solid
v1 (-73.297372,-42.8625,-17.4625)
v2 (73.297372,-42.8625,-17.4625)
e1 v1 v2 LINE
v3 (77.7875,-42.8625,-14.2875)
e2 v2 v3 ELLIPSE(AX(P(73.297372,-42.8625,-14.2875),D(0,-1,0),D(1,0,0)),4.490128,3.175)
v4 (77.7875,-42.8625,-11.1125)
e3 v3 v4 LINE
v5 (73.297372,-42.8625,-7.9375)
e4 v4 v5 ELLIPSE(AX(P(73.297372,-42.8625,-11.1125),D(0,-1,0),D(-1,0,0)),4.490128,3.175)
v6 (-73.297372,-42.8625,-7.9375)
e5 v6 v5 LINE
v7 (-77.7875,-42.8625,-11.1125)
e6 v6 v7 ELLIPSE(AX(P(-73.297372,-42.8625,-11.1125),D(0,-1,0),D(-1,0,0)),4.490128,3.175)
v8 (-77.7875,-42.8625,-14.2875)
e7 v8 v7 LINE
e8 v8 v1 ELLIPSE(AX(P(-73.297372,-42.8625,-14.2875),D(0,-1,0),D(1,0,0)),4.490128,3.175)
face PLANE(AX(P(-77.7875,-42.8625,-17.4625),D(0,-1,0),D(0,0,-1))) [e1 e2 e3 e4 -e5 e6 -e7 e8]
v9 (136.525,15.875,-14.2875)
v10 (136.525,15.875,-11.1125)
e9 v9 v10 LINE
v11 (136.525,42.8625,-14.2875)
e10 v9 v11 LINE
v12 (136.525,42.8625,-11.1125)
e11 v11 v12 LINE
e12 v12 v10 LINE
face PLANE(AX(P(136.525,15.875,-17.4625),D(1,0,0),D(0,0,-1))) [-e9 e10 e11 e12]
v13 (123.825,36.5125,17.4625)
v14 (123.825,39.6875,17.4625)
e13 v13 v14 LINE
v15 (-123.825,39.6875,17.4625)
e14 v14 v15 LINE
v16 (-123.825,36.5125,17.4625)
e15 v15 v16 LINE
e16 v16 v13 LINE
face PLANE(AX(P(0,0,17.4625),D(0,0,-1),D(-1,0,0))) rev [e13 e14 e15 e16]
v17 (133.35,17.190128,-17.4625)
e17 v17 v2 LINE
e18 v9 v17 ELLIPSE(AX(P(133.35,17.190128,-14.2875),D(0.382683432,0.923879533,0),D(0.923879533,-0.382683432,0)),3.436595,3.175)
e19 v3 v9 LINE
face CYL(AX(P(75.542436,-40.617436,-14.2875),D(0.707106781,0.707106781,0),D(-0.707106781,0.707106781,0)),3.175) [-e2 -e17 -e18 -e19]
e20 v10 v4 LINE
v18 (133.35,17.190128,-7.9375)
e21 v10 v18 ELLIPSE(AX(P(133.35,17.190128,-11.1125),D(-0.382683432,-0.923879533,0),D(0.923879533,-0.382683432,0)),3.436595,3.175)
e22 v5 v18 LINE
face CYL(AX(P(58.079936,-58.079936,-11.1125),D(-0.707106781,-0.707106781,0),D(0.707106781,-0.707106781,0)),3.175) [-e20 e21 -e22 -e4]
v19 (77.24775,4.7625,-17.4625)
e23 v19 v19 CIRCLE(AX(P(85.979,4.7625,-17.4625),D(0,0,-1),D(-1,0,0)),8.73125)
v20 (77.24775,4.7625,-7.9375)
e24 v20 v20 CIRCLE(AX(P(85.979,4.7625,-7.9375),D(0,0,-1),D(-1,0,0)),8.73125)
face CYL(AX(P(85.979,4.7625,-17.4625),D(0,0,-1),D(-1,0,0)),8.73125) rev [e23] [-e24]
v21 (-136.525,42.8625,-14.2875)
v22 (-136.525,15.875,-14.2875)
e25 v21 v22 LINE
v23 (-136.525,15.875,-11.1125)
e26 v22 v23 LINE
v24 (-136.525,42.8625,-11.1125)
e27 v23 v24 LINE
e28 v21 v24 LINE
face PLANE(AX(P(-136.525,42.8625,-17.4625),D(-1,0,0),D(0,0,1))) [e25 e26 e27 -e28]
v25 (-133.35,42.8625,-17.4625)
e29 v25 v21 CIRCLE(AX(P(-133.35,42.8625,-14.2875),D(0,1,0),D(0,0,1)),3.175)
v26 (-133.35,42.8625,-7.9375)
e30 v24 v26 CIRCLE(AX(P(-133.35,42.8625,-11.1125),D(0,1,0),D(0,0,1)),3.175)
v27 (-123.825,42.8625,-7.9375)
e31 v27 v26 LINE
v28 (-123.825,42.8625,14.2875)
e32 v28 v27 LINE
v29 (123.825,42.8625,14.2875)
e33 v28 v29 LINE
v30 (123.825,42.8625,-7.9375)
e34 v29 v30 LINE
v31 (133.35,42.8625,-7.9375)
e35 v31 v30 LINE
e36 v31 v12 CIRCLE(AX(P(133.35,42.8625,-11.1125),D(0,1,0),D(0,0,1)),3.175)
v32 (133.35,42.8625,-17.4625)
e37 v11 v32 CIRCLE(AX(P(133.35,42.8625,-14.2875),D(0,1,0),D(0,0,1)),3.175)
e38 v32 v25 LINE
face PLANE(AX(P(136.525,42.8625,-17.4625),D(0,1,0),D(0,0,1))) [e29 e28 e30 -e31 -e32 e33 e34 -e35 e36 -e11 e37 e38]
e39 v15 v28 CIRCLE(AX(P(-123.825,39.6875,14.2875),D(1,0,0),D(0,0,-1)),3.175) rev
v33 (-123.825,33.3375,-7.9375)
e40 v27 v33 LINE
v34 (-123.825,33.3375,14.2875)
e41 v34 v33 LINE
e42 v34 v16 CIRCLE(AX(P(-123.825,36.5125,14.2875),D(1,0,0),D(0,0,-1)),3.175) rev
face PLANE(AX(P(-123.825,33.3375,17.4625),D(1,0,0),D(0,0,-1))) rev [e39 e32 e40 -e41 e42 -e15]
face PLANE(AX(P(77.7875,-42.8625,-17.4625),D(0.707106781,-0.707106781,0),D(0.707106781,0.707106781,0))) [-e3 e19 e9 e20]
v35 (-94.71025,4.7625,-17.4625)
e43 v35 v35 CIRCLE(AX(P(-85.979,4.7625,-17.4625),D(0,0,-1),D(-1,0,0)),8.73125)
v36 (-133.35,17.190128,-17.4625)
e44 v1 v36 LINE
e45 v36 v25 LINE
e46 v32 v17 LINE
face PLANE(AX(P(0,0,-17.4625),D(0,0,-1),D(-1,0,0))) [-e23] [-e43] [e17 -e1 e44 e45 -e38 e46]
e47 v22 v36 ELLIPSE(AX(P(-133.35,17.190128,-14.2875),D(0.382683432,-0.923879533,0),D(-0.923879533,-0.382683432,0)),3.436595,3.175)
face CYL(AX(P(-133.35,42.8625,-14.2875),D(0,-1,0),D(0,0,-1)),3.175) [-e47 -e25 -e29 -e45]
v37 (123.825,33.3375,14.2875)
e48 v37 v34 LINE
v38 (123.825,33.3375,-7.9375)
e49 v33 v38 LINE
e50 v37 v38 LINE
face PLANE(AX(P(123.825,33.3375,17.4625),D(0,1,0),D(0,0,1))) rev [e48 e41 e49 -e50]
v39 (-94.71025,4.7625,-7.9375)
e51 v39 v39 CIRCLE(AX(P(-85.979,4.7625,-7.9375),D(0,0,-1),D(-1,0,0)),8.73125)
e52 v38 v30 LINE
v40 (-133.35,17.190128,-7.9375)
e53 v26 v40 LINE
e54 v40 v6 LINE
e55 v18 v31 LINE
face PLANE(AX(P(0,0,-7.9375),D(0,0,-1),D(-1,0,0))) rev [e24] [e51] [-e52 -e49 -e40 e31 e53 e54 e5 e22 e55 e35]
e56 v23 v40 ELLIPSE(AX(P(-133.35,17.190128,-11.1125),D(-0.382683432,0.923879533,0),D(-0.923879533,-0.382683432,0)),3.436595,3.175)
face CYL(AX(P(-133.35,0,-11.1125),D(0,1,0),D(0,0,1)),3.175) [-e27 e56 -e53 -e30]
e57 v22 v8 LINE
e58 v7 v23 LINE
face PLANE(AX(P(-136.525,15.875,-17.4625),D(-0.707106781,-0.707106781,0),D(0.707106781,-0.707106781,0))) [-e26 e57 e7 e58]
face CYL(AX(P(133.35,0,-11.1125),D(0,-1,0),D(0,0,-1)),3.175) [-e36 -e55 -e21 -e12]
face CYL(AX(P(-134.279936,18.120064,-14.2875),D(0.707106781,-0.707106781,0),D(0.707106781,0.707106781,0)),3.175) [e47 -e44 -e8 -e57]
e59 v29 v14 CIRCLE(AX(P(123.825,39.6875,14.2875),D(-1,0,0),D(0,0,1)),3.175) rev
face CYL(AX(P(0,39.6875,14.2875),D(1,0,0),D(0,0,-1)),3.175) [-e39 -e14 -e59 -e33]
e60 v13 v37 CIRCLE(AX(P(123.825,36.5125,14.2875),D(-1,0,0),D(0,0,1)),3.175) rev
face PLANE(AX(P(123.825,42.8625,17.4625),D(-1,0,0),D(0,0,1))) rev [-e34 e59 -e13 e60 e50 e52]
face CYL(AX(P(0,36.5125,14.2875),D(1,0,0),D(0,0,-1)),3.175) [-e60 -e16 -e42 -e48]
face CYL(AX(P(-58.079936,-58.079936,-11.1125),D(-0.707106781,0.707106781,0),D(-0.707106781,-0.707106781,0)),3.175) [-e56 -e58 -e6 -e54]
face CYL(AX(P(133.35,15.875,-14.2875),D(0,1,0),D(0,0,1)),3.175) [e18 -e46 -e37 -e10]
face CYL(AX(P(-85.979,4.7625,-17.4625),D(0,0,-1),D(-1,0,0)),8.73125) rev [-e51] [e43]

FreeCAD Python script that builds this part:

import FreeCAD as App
import Part
import Sketcher

V = App.Vector
Q = App.Units.Quantity


def edges_at(feature, points):
    """Names of the edges that pass closest to the given points."""
    edges = feature.Shape.Edges
    near = lambda p: min(range(len(edges)), key=lambda i: edges[i].distToShape(Part.Vertex(*p))[0])
    return sorted({f"Edge{near(p) + 1}" for p in points})


def add_polygon(sketch, points):
    """Adds a closed chain of lines whose ends are joined by coincident constraints."""
    first, n = sketch.GeometryCount, len(points)
    for a, b in zip(points, points[1:] + points[:1]):
        sketch.addGeometry(Part.LineSegment(App.Vector(*a, 0), App.Vector(*b, 0)), False)
    for i in range(n):
        sketch.addConstraint(Sketcher.Constraint("Coincident", first + i, 2, first + (i + 1) % n, 1))

doc = App.newDocument("Part")
body = doc.addObject("PartDesign::Body", "Body")

# Sketch on XY plane
sketch1 = doc.addObject("Sketcher::SketchObject", "Sketch")
body.addObject(sketch1)
sketch1.AttachmentSupport = (doc.XY_Plane, [""])
sketch1.MapMode = "FlatFace"
sketch1.AttachmentOffset = App.Placement(V(0, 0, -0.3125 * 25.4), App.Rotation())
add_polygon(sketch1, [(136.525, 15.875), (136.525, 42.8625), (-136.525, 42.8625), (-136.525, 15.875), (-77.7875, -42.8625), (77.7875, -42.8625)])  # lines 0-5
sketch1.addConstraint(Sketcher.Constraint("Vertical", 0))
sketch1.addConstraint(Sketcher.Constraint("Horizontal", 1))
sketch1.addConstraint(Sketcher.Constraint("Vertical", 2))
sketch1.addConstraint(Sketcher.Constraint("Horizontal", 4))
sketch1.addConstraint(Sketcher.Constraint("Symmetric", 2, 2, 5, 2, -2))
sketch1.addConstraint(Sketcher.Constraint("Perpendicular", 3, 5))
sketch1.addConstraint(Sketcher.Constraint("Equal", 3, 5))
sketch1.addConstraint(Sketcher.Constraint("DistanceX", 1, 2, 1, 1, Q("10.75 in")))
sketch1.addConstraint(Sketcher.Constraint("DistanceX", 4, 1, 4, 2, Q("6.125 in")))
sketch1.addConstraint(Sketcher.Constraint("DistanceY", 0, 1, 0, 2, Q("1.0625 in")))
sketch1.addConstraint(Sketcher.Constraint("DistanceY", -1, 1, 0, 2, Q("1.6875 in")))
pad1 = doc.addObject("PartDesign::Pad", "Pad")
body.addObject(pad1)
pad1.Profile = sketch1
pad1.Length = Q("0.375 in")
pad1.Reversed = True

# Sketch on XY plane
sketch2 = doc.addObject("Sketcher::SketchObject", "Sketch001")
body.addObject(sketch2)
sketch2.AttachmentSupport = (doc.XY_Plane, [""])
sketch2.MapMode = "FlatFace"
sketch2.AttachmentOffset = App.Placement(V(0, 0, -0.3125 * 25.4), App.Rotation())
add_polygon(sketch2, [(-123.825, 42.8625), (-123.825, 33.3375), (123.825, 33.3375), (123.825, 42.8625)])  # lines 0-3
sketch2.addConstraint(Sketcher.Constraint("Vertical", 0))
sketch2.addConstraint(Sketcher.Constraint("Horizontal", 1))
sketch2.addConstraint(Sketcher.Constraint("Vertical", 2))
sketch2.addConstraint(Sketcher.Constraint("Horizontal", 3))
sketch2.addConstraint(Sketcher.Constraint("DistanceX", 1, 1, 1, 2, Q("9.75 in")))
sketch2.addConstraint(Sketcher.Constraint("DistanceY", 0, 2, 0, 1, Q("0.375 in")))
sketch2.addConstraint(Sketcher.Constraint("DistanceX", 0, 2, -1, 1, Q("4.875 in")))
sketch2.addConstraint(Sketcher.Constraint("DistanceY", -1, 1, 0, 2, Q("1.3125 in")))
pad2 = doc.addObject("PartDesign::Pad", "Pad001")
body.addObject(pad2)
pad2.Profile = sketch2
pad2.Length = Q("1 in")

# Sketch on XY plane
sketch3 = doc.addObject("Sketcher::SketchObject", "Sketch002")
body.addObject(sketch3)
sketch3.AttachmentSupport = (doc.XY_Plane, [""])
sketch3.MapMode = "FlatFace"
sketch3.AttachmentOffset = App.Placement(V(0, 0, -0.6875 * 25.4), App.Rotation())
sketch3.addGeometry(Part.Circle(V(85.979, 4.7625, 0), V(0, 0, 1), 8.73125), False)
sketch3.addGeometry(Part.Circle(V(-85.979, 4.7625, 0), V(0, 0, 1), 8.73125), False)
sketch3.addConstraint(Sketcher.Constraint("Equal", 0, 1))
sketch3.addConstraint(Sketcher.Constraint("Symmetric", 0, 3, 1, 3, -2))
sketch3.addConstraint(Sketcher.Constraint("Diameter", 0, Q("0.6875 in")))
sketch3.addConstraint(Sketcher.Constraint("DistanceX", 1, 3, 0, 3, Q("6.77 in")))
sketch3.addConstraint(Sketcher.Constraint("DistanceY", -1, 1, 0, 3, Q("0.1875 in")))
doc.recompute()
hole = doc.addObject("PartDesign::Hole", "Hole")
body.addObject(hole)
hole.Profile = sketch3
hole.ThreadType = "None"
hole.Diameter = Q("0.6875 in")
hole.DepthType = "Dimension"
hole.Depth = Q("1.375 in")
hole.DrillPoint = "Flat"
hole.Reversed = True
doc.recompute()

fillet = doc.addObject("PartDesign::Fillet", "Fillet")
body.addObject(fillet)
fillet.Base = (hole, edges_at(hole, [
    (-136.525, 29.369, -17.462),
    (-107.156, -13.494, -17.462),
    (0, 33.337, 17.462),
    (0, 42.862, 17.462),
    (107.156, -13.494, -17.462),
    (-107.156, -13.494, -7.938),
    (-136.525, 29.369, -7.938),
    (136.525, 29.369, -17.462),
    (136.525, 29.369, -7.938),
    (107.156, -13.494, -7.938),
]))
fillet.Radius = Q("0.125 in")

doc.recompute()
